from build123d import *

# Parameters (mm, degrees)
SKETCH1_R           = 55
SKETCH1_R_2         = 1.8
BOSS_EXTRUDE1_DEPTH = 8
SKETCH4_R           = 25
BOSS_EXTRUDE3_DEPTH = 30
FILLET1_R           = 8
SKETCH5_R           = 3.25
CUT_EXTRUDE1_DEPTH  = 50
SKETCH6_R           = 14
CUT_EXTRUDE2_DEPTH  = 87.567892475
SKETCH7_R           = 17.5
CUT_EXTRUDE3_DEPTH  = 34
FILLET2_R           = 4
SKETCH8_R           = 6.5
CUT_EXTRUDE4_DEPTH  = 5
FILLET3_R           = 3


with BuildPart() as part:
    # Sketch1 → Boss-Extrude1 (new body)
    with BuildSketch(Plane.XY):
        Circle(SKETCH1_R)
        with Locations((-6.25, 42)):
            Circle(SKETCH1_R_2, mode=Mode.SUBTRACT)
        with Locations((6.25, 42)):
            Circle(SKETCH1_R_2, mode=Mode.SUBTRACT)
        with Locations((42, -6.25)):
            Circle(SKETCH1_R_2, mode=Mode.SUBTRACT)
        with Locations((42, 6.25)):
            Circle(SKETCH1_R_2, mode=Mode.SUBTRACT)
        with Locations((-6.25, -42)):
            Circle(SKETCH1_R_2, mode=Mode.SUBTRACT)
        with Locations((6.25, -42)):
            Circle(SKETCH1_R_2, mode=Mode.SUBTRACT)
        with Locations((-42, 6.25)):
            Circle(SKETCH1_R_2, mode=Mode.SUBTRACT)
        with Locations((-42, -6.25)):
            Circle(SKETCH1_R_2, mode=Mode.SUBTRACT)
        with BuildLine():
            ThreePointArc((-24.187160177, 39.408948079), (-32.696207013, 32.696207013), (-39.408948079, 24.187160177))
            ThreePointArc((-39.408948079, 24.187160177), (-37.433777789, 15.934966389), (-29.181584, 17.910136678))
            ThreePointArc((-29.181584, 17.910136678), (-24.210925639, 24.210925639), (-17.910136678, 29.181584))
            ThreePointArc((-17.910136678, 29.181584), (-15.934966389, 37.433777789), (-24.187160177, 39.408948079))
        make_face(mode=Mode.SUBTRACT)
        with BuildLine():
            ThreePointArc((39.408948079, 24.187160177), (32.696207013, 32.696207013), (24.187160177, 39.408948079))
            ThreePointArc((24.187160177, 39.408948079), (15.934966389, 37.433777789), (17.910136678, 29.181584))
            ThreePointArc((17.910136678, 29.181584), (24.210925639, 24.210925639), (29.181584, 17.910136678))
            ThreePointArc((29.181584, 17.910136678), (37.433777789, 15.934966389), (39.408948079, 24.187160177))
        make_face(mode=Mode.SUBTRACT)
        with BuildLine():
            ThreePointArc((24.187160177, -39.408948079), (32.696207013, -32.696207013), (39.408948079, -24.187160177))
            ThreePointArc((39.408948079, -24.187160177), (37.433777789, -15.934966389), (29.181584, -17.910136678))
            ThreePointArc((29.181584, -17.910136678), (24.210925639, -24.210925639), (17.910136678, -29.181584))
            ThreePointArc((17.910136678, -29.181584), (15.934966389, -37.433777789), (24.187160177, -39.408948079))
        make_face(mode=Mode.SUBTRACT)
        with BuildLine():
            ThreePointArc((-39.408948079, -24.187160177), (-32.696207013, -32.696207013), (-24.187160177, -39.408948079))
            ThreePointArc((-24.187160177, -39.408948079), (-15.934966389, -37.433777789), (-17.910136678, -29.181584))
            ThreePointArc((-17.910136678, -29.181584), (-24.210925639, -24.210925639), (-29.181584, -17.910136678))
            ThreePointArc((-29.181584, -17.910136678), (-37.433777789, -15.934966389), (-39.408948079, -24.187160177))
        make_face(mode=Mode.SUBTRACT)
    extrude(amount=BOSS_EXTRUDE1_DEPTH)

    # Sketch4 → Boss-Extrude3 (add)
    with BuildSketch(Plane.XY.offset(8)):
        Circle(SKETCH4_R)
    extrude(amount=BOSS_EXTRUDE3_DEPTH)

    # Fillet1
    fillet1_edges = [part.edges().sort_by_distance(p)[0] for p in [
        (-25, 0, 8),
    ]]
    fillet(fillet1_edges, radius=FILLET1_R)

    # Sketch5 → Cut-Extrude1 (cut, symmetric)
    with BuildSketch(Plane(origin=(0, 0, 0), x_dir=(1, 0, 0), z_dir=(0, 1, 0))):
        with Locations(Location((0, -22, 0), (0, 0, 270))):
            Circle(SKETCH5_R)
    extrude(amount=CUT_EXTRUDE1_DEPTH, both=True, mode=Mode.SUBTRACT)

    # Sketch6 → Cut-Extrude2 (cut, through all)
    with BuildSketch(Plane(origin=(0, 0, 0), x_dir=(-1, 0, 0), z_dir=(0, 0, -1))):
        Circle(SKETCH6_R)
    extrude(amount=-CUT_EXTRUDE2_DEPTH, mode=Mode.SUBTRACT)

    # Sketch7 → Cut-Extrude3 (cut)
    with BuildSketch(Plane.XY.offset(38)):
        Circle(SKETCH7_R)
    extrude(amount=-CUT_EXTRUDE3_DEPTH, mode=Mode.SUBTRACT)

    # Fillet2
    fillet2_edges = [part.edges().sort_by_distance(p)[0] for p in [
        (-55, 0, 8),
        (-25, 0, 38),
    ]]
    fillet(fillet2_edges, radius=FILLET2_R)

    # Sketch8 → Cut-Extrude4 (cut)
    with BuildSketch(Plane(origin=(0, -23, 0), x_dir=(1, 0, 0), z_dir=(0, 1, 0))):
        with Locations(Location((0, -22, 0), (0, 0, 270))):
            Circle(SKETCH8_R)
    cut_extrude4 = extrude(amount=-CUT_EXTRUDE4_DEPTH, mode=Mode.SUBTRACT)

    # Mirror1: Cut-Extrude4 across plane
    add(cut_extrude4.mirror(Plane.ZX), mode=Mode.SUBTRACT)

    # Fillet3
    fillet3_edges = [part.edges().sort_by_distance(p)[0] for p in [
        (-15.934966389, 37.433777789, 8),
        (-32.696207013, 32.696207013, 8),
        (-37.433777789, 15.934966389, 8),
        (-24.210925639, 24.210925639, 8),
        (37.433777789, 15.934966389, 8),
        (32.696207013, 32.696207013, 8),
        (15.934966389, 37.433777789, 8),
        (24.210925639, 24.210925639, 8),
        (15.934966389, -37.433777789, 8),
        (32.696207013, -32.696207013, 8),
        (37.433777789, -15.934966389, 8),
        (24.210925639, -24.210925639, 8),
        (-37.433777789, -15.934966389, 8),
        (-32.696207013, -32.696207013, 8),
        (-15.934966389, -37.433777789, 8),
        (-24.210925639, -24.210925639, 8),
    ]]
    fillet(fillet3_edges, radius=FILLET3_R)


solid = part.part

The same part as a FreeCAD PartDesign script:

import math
import FreeCAD as App
import Part
import Sketcher


def edges_at(feature, points):
    """Names of the edges that pass closest to the given points."""
    edges = feature.Shape.Edges
    near = lambda p: min(range(len(edges)), key=lambda i: edges[i].distToShape(Part.Vertex(*p))[0])
    return sorted({f"Edge{near(p) + 1}" for p in points})

doc = App.newDocument("Part")
body = doc.addObject("PartDesign::Body", "Body")

# Sketch on XY plane
sketch1 = body.newObject("Sketcher::SketchObject", "Sketch")
sketch1.AttachmentSupport = (doc.getObject("XY_Plane"), [""])
sketch1.MapMode = "FlatFace"
sketch1.addGeometry(Part.Circle(App.Vector(0, 0, 0), App.Vector(0, 0, 1), 55), False)
sketch1.addGeometry(Part.ArcOfCircle(Part.Circle(App.Vector(0, 0, 0), App.Vector(0, 0, 1), 46.239419), math.radians(-148.460565), math.radians(-121.539435)), False)
sketch1.addGeometry(Part.ArcOfCircle(Part.Circle(App.Vector(-34.295266, -21.048648, 0), App.Vector(0, 0, 1), 6), math.radians(31.539435), math.radians(211.539435)), False)
sketch1.addGeometry(Part.ArcOfCircle(Part.Circle(App.Vector(0, 0, 0), App.Vector(0, 0, 1), 34.239419), math.radians(-148.460565), math.radians(-121.539435)), False)
sketch1.addGeometry(Part.ArcOfCircle(Part.Circle(App.Vector(-21.048648, -34.295266, 0), App.Vector(0, 0, 1), 6), math.radians(-121.539435), math.radians(58.460565)), False)
sketch1.addGeometry(Part.Circle(App.Vector(-6.25, -42, 0), App.Vector(0, 0, 1), 1.8), False)
sketch1.addGeometry(Part.Circle(App.Vector(-42, -6.25, 0), App.Vector(0, 0, 1), 1.8), False)
sketch1.addGeometry(Part.Circle(App.Vector(6.25, -42, 0), App.Vector(0, 0, 1), 1.8), False)
sketch1.addGeometry(Part.ArcOfCircle(Part.Circle(App.Vector(0, 0, 0), App.Vector(0, 0, 1), 46.239419), math.radians(-58.460565), math.radians(-31.539435)), False)
sketch1.addGeometry(Part.ArcOfCircle(Part.Circle(App.Vector(21.048648, -34.295266, 0), App.Vector(0, 0, 1), 6), math.radians(121.539435), math.radians(301.539435)), False)
sketch1.addGeometry(Part.ArcOfCircle(Part.Circle(App.Vector(0, 0, 0), App.Vector(0, 0, 1), 34.239419), math.radians(-58.460565), math.radians(-31.539435)), False)
sketch1.addGeometry(Part.ArcOfCircle(Part.Circle(App.Vector(34.295266, -21.048648, 0), App.Vector(0, 0, 1), 6), math.radians(-31.539435), math.radians(148.460565)), False)
sketch1.addGeometry(Part.Circle(App.Vector(42, -6.25, 0), App.Vector(0, 0, 1), 1.8), False)
sketch1.addGeometry(Part.Circle(App.Vector(-42, 6.25, 0), App.Vector(0, 0, 1), 1.8), False)
sketch1.addGeometry(Part.ArcOfCircle(Part.Circle(App.Vector(0, 0, 0), App.Vector(0, 0, 1), 46.239419), math.radians(121.539435), math.radians(148.460565)), False)
sketch1.addGeometry(Part.ArcOfCircle(Part.Circle(App.Vector(-21.048648, 34.295266, 0), App.Vector(0, 0, 1), 6), math.radians(-58.460565), math.radians(121.539435)), False)
sketch1.addGeometry(Part.ArcOfCircle(Part.Circle(App.Vector(0, 0, 0), App.Vector(0, 0, 1), 34.239419), math.radians(121.539435), math.radians(148.460565)), False)
sketch1.addGeometry(Part.ArcOfCircle(Part.Circle(App.Vector(-34.295266, 21.048648, 0), App.Vector(0, 0, 1), 6), math.radians(148.460565), math.radians(328.460565)), False)
sketch1.addGeometry(Part.Circle(App.Vector(-6.25, 42, 0), App.Vector(0, 0, 1), 1.8), False)
sketch1.addGeometry(Part.Circle(App.Vector(42, 6.25, 0), App.Vector(0, 0, 1), 1.8), False)
sketch1.addGeometry(Part.Circle(App.Vector(6.25, 42, 0), App.Vector(0, 0, 1), 1.8), False)
sketch1.addGeometry(Part.ArcOfCircle(Part.Circle(App.Vector(0, 0, 0), App.Vector(0, 0, 1), 46.239419), math.radians(31.539435), math.radians(58.460565)), False)
sketch1.addGeometry(Part.ArcOfCircle(Part.Circle(App.Vector(34.295266, 21.048648, 0), App.Vector(0, 0, 1), 6), math.radians(-148.460565), math.radians(31.539435)), False)
sketch1.addGeometry(Part.ArcOfCircle(Part.Circle(App.Vector(0, 0, 0), App.Vector(0, 0, 1), 34.239419), math.radians(31.539435), math.radians(58.460565)), False)
sketch1.addGeometry(Part.ArcOfCircle(Part.Circle(App.Vector(21.048648, 34.295266, 0), App.Vector(0, 0, 1), 6), math.radians(58.460565), math.radians(238.460565)), False)
sketch1.addConstraint(Sketcher.Constraint("Tangent", 1, 1, 2, 2))
sketch1.addConstraint(Sketcher.Constraint("Tangent", 2, 1, 3, 1))
sketch1.addConstraint(Sketcher.Constraint("Tangent", 3, 2, 4, 2))
sketch1.addConstraint(Sketcher.Constraint("Tangent", 4, 1, 1, 2))
sketch1.addConstraint(Sketcher.Constraint("Tangent", 8, 1, 9, 2))
sketch1.addConstraint(Sketcher.Constraint("Tangent", 9, 1, 10, 1))
sketch1.addConstraint(Sketcher.Constraint("Tangent", 10, 2, 11, 2))
sketch1.addConstraint(Sketcher.Constraint("Tangent", 11, 1, 8, 2))
sketch1.addConstraint(Sketcher.Constraint("Tangent", 14, 1, 15, 2))
sketch1.addConstraint(Sketcher.Constraint("Tangent", 15, 1, 16, 1))
sketch1.addConstraint(Sketcher.Constraint("Tangent", 16, 2, 17, 2))
sketch1.addConstraint(Sketcher.Constraint("Tangent", 17, 1, 14, 2))
sketch1.addConstraint(Sketcher.Constraint("Tangent", 21, 1, 22, 2))
sketch1.addConstraint(Sketcher.Constraint("Tangent", 22, 1, 23, 1))
sketch1.addConstraint(Sketcher.Constraint("Tangent", 23, 2, 24, 2))
sketch1.addConstraint(Sketcher.Constraint("Tangent", 24, 1, 21, 2))
sketch1.addConstraint(Sketcher.Constraint("Coincident", 0, 3, -1, 1))
sketch1.addConstraint(Sketcher.Constraint("Coincident", 1, 3, -1, 1))
sketch1.addConstraint(Sketcher.Constraint("Coincident", 3, 3, -1, 1))
sketch1.addConstraint(Sketcher.Constraint("Coincident", 8, 3, -1, 1))
sketch1.addConstraint(Sketcher.Constraint("Coincident", 10, 3, -1, 1))
sketch1.addConstraint(Sketcher.Constraint("Coincident", 14, 3, -1, 1))
sketch1.addConstraint(Sketcher.Constraint("Coincident", 16, 3, -1, 1))
sketch1.addConstraint(Sketcher.Constraint("Coincident", 21, 3, -1, 1))
sketch1.addConstraint(Sketcher.Constraint("Coincident", 23, 3, -1, 1))
sketch1.addConstraint(Sketcher.Constraint("Equal", 5, 6))
sketch1.addConstraint(Sketcher.Constraint("Equal", 6, 7))
sketch1.addConstraint(Sketcher.Constraint("Equal", 1, 8))
sketch1.addConstraint(Sketcher.Constraint("Equal", 4, 9))
sketch1.addConstraint(Sketcher.Constraint("Equal", 7, 12))
sketch1.addConstraint(Sketcher.Constraint("Equal", 12, 13))
sketch1.addConstraint(Sketcher.Constraint("Equal", 8, 14))
sketch1.addConstraint(Sketcher.Constraint("Equal", 11, 15))
sketch1.addConstraint(Sketcher.Constraint("Equal", 13, 18))
sketch1.addConstraint(Sketcher.Constraint("Equal", 18, 19))
sketch1.addConstraint(Sketcher.Constraint("Equal", 19, 20))
sketch1.addConstraint(Sketcher.Constraint("Equal", 14, 21))
sketch1.addConstraint(Sketcher.Constraint("Equal", 17, 22))
sketch1.addConstraint(Sketcher.Constraint("Symmetric", 12, 3, 13, 3, -1, 1))
sketch1.addConstraint(Sketcher.Constraint("Symmetric", 7, 3, 18, 3, -1, 1))
sketch1.addConstraint(Sketcher.Constraint("Symmetric", 6, 3, 19, 3, -1, 1))
sketch1.addConstraint(Sketcher.Constraint("Symmetric", 5, 3, 20, 3, -1, 1))
sketch1.addConstraint(Sketcher.Constraint("Symmetric", 5, 3, 7, 3, -2))
sketch1.addConstraint(Sketcher.Constraint("Symmetric", 6, 3, 12, 3, -2))
sketch1.addConstraint(Sketcher.Constraint("Horizontal", 4, 3, 9, 3))
sketch1.addConstraint(Sketcher.Constraint("Horizontal", 2, 3, 11, 3))
sketch1.addConstraint(Sketcher.Constraint("Horizontal", 17, 3, 22, 3))
sketch1.addConstraint(Sketcher.Constraint("Horizontal", 15, 3, 24, 3))
sketch1.addConstraint(Sketcher.Constraint("Vertical", 4, 3, 15, 3))
sketch1.addConstraint(Sketcher.Constraint("Vertical", 2, 3, 17, 3))
sketch1.addConstraint(Sketcher.Constraint("Diameter", 0, 110.0))
sketch1.addConstraint(Sketcher.Constraint("Radius", 2, 6.0))
sketch1.addConstraint(Sketcher.Constraint("Diameter", 5, 3.6))
sketch1.addConstraint(Sketcher.Constraint("DistanceY", 5, 3, -1, 1, 42.0))
sketch1.addConstraint(Sketcher.Constraint("DistanceX", 6, 3, -1, 1, 42.0))
sketch1.addConstraint(Sketcher.Constraint("DistanceX", 5, 3, 7, 3, 12.5))
sketch1.addConstraint(Sketcher.Constraint("DistanceY", 6, 3, 13, 3, 12.5))
sketch1.addConstraint(Sketcher.Constraint("Radius", 1, 46.239419))
sketch1.addConstraint(Sketcher.Constraint("DistanceX", 1, 1, 4, 3, 18.3603))
sketch1.addConstraint(Sketcher.Constraint("DistanceY", 4, 1, 2, 3, 18.3603))
pad1 = body.newObject("PartDesign::Pad", "Pad")
pad1.Profile = sketch1
pad1.Length = 8

# Sketch on XY plane
sketch2 = body.newObject("Sketcher::SketchObject", "Sketch001")
sketch2.AttachmentSupport = (doc.getObject("XY_Plane"), [""])
sketch2.MapMode = "FlatFace"
sketch2.AttachmentOffset = App.Placement(App.Vector(0, 0, 8), App.Rotation())
sketch2.addGeometry(Part.Circle(App.Vector(0, 0, 0), App.Vector(0, 0, 1), 25), False)
sketch2.addConstraint(Sketcher.Constraint("Coincident", 0, 3, -1, 1))
sketch2.addConstraint(Sketcher.Constraint("Diameter", 0, 50.0))
pad2 = body.newObject("PartDesign::Pad", "Pad001")
pad2.Profile = sketch2
pad2.Length = 30
doc.recompute()

fillet = body.newObject("PartDesign::Fillet", "Fillet")
fillet.Base = (pad2, edges_at(pad2, [(-25, 0, 8)]))
fillet.Radius = 8

# Sketch on XZ plane
sketch3 = body.newObject("Sketcher::SketchObject", "Sketch002")
sketch3.AttachmentSupport = (doc.getObject("XZ_Plane"), [""])
sketch3.MapMode = "FlatFace"
sketch3.addGeometry(Part.Circle(App.Vector(0, 22, 0), App.Vector(0, 0, 1), 3.25), False)
sketch3.addConstraint(Sketcher.Constraint("PointOnObject", 0, 3, -2))
sketch3.addConstraint(Sketcher.Constraint("Diameter", 0, 6.5))
sketch3.addConstraint(Sketcher.Constraint("DistanceY", -1, 1, 0, 3, 22.0))
pocket1 = body.newObject("PartDesign::Pocket", "Pocket")
pocket1.Profile = sketch3
pocket1.Length = 100
pocket1.Midplane = True

# Sketch on XY plane
sketch4 = body.newObject("Sketcher::SketchObject", "Sketch003")
sketch4.AttachmentSupport = (doc.getObject("XY_Plane"), [""])
sketch4.MapMode = "FlatFace"
sketch4.addGeometry(Part.Circle(App.Vector(0, 0, 0), App.Vector(0, 0, 1), 14), False)
sketch4.addConstraint(Sketcher.Constraint("Coincident", 0, 3, -1, 1))
sketch4.addConstraint(Sketcher.Constraint("Diameter", 0, 28.0))
pocket2 = body.newObject("PartDesign::Pocket", "Pocket001")
pocket2.Profile = sketch4
pocket2.Type = "ThroughAll"
pocket2.Reversed = True

# Sketch on XY plane
sketch5 = body.newObject("Sketcher::SketchObject", "Sketch004")
sketch5.AttachmentSupport = (doc.getObject("XY_Plane"), [""])
sketch5.MapMode = "FlatFace"
sketch5.AttachmentOffset = App.Placement(App.Vector(0, 0, 38), App.Rotation())
sketch5.addGeometry(Part.Circle(App.Vector(0, 0, 0), App.Vector(0, 0, 1), 17.5), False)
sketch5.addConstraint(Sketcher.Constraint("Coincident", 0, 3, -1, 1))
sketch5.addConstraint(Sketcher.Constraint("Diameter", 0, 35.0))
pocket3 = body.newObject("PartDesign::Pocket", "Pocket002")
pocket3.Profile = sketch5
pocket3.Length = 34
doc.recompute()

fillet2 = body.newObject("PartDesign::Fillet", "Fillet001")
fillet2.Base = (pocket3, edges_at(pocket3, [(-55, 0, 8), (-25, 0, 38)]))
fillet2.Radius = 4

# Sketch on XZ plane
sketch6 = body.newObject("Sketcher::SketchObject", "Sketch005")
sketch6.AttachmentSupport = (doc.getObject("XZ_Plane"), [""])
sketch6.MapMode = "FlatFace"
sketch6.AttachmentOffset = App.Placement(App.Vector(0, 0, 23), App.Rotation())
sketch6.addGeometry(Part.Circle(App.Vector(0, 22, 0), App.Vector(0, 0, 1), 6.5), False)
sketch6.addConstraint(Sketcher.Constraint("PointOnObject", 0, 3, -2))
sketch6.addConstraint(Sketcher.Constraint("Diameter", 0, 13.0))
sketch6.addConstraint(Sketcher.Constraint("DistanceY", -1, 1, 0, 3, 22.0))
pocket4 = body.newObject("PartDesign::Pocket", "Pocket003")
pocket4.Profile = sketch6
pocket4.Length = 5
pocket4.Reversed = True
doc.recompute()

mirrored = body.newObject("PartDesign::Mirrored", "Mirrored")
mirrored.Originals = [pocket4]
mirrored.MirrorPlane = (doc.getObject("XZ_Plane"), [""])
body.Tip = mirrored
doc.recompute()

fillet3 = body.newObject("PartDesign::Fillet", "Fillet002")
fillet3.Base = (mirrored, edges_at(mirrored, [
    (-15.935, 37.434, 8),
    (-32.696, 32.696, 8),
    (-37.434, 15.935, 8),
    (-24.211, 24.211, 8),
    (37.434, 15.935, 8),
    (32.696, 32.696, 8),
    (15.935, 37.434, 8),
    (24.211, 24.211, 8),
    (15.935, -37.434, 8),
    (32.696, -32.696, 8),
    (37.434, -15.935, 8),
    (24.211, -24.211, 8),
    (-37.434, -15.935, 8),
    (-32.696, -32.696, 8),
    (-15.935, -37.434, 8),
    (-24.211, -24.211, 8),
]))
fillet3.Radius = 3

doc.recompute()
